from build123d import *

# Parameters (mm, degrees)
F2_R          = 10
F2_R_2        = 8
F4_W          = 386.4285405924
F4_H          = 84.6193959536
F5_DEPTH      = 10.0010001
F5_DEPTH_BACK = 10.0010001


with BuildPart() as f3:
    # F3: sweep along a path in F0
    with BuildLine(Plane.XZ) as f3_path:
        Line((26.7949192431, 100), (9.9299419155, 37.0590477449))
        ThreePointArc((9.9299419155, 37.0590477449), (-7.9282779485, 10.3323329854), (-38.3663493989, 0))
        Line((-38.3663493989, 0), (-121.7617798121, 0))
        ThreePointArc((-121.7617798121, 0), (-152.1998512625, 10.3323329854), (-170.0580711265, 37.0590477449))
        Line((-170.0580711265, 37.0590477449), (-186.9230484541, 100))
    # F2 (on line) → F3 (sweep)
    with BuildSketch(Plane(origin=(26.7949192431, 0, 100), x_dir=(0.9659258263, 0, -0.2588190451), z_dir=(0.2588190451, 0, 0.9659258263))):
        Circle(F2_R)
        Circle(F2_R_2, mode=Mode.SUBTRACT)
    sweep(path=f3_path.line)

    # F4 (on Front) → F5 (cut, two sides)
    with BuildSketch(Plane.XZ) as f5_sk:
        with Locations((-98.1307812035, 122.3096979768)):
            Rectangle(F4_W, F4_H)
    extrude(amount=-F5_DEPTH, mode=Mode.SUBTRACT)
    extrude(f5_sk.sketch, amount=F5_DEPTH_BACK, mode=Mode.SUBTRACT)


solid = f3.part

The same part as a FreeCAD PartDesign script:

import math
import FreeCAD as App
import Part
import Sketcher
Q = App.Units.Quantity


def add_polygon(sketch, points):
    """Adds a closed chain of lines whose ends are joined by coincident constraints."""
    first, n = sketch.GeometryCount, len(points)
    for a, b in zip(points, points[1:] + points[:1]):
        sketch.addGeometry(Part.LineSegment(App.Vector(*a, 0), App.Vector(*b, 0)), False)
    for i in range(n):
        sketch.addConstraint(Sketcher.Constraint("Coincident", first + i, 2, first + (i + 1) % n, 1))

doc = App.newDocument("Part")
params = doc.addObject("Spreadsheet::Sheet", "Params")
for row, (alias, value) in enumerate([
    ("sketch1_diameter", "20 mm"),
    ("sketch1_diameter2", "16 mm"),
    ("sketch2_radius", "50 mm"),
], start=1):
    params.set(f"A{row}", alias)
    params.set(f"B{row}", "=" + value)
    params.setAlias(f"B{row}", alias)

body = doc.addObject("PartDesign::Body", "Body")

sketch1 = body.newObject("Sketcher::SketchObject", "Sketch")
sketch1.Placement = App.Placement(App.Vector(26.794919, 0, 100), App.Rotation(App.Vector(0.965925826, 0, -0.258819045), App.Vector(0, 0.999999999, 0), App.Vector(0.258819045, 0, 0.965925826), "ZXY"))
sketch1.addGeometry([
    Part.Circle(App.Vector(0, 0, 0), App.Vector(0, 0, 1), 10),
    Part.Circle(App.Vector(0, 0, 0), App.Vector(0, 0, 1), 8),
], False)
sketch1.addConstraint([
    Sketcher.Constraint("Coincident", 0, 3, -1, 1),
    Sketcher.Constraint("Coincident", 1, 3, -1, 1),
    Sketcher.Constraint("Diameter", 0, 20.0),
    Sketcher.Constraint("Diameter", 1, 16.0),
])
sketch1.setExpression("Constraints[2]", "Params.sketch1_diameter")
sketch1.setExpression("Constraints[3]", "Params.sketch1_diameter2")

sketch2 = body.newObject("Sketcher::SketchObject", "Sketch001")
sketch2.AttachmentSupport = (doc.getObject("XZ_Plane"), [""])
sketch2.MapMode = "FlatFace"
sketch2.addGeometry([
    Part.LineSegment(App.Vector(27, 100, 0), App.Vector(10, 37, 0)),
    Part.ArcOfCircle(Part.Circle(App.Vector(-38, 50, 0), App.Vector(0, 0, 1), 50), math.radians(-90), math.radians(-15)),
    Part.LineSegment(App.Vector(-38, 0, 0), App.Vector(-122, 0, 0)),
    Part.ArcOfCircle(Part.Circle(App.Vector(-122, 50, 0), App.Vector(0, 0, 1), 50), math.radians(-165), math.radians(-90)),
    Part.LineSegment(App.Vector(-170, 37, 0), App.Vector(-187, 100, 0)),
], False)
sketch2.addConstraint([
    Sketcher.Constraint("Tangent", 0, 2, 1, 2),
    Sketcher.Constraint("Tangent", 1, 1, 2, 1),
    Sketcher.Constraint("Tangent", 2, 2, 3, 2),
    Sketcher.Constraint("Tangent", 3, 1, 4, 1),
    Sketcher.Constraint("Horizontal", 2),
    Sketcher.Constraint("Equal", 1, 3),
    Sketcher.Constraint("PointOnObject", 1, 1, -1),
    Sketcher.Constraint("Horizontal", 0, 2, 3, 1),
    Sketcher.Constraint("Horizontal", 0, 1, 4, 2),
    Sketcher.Constraint("Radius", 1, 50.0),
    Sketcher.Constraint("Angle", 0, Q("-105 deg")),
    Sketcher.Constraint("DistanceY", -1, 1, 0, 1, 100.0),
    Sketcher.Constraint("DistanceX", 2, 2, 2, 1, 83.39543),
    Sketcher.Constraint("DistanceX", 1, 3, -1, 1, 38.366349),
])
sketch2.setExpression("Constraints[9]", "Params.sketch2_radius")
doc.recompute()

additivepipe = body.newObject("PartDesign::AdditivePipe", "AdditivePipe")
additivepipe.Profile = sketch1
additivepipe.Spine = (sketch2, ["Edge1", "Edge2", "Edge3", "Edge4", "Edge5"])

sketch3 = body.newObject("Sketcher::SketchObject", "Sketch002")
sketch3.AttachmentSupport = (doc.getObject("XZ_Plane"), [""])
sketch3.MapMode = "FlatFace"
add_polygon(sketch3, [(-291, 165), (-291, 80), (95, 80), (95, 165)])
sketch3.addConstraint([
    Sketcher.Constraint("Vertical", 0),
    Sketcher.Constraint("Horizontal", 1),
    Sketcher.Constraint("Vertical", 2),
    Sketcher.Constraint("Horizontal", 3),
    Sketcher.Constraint("DistanceY", -1, 1, 0, 2, 80.0),
    Sketcher.Constraint("DistanceX", 1, 1, 1, 2, 386.428541),
    Sketcher.Constraint("DistanceY", 0, 2, 0, 1, 84.619396),
    Sketcher.Constraint("DistanceX", 0, 2, -1, 1, 291.345052),
])
pocket1 = body.newObject("PartDesign::Pocket", "Pocket")
pocket1.Profile = sketch3
pocket1.Type = "ThroughAll"
pocket1.Midplane = True

doc.recompute()
